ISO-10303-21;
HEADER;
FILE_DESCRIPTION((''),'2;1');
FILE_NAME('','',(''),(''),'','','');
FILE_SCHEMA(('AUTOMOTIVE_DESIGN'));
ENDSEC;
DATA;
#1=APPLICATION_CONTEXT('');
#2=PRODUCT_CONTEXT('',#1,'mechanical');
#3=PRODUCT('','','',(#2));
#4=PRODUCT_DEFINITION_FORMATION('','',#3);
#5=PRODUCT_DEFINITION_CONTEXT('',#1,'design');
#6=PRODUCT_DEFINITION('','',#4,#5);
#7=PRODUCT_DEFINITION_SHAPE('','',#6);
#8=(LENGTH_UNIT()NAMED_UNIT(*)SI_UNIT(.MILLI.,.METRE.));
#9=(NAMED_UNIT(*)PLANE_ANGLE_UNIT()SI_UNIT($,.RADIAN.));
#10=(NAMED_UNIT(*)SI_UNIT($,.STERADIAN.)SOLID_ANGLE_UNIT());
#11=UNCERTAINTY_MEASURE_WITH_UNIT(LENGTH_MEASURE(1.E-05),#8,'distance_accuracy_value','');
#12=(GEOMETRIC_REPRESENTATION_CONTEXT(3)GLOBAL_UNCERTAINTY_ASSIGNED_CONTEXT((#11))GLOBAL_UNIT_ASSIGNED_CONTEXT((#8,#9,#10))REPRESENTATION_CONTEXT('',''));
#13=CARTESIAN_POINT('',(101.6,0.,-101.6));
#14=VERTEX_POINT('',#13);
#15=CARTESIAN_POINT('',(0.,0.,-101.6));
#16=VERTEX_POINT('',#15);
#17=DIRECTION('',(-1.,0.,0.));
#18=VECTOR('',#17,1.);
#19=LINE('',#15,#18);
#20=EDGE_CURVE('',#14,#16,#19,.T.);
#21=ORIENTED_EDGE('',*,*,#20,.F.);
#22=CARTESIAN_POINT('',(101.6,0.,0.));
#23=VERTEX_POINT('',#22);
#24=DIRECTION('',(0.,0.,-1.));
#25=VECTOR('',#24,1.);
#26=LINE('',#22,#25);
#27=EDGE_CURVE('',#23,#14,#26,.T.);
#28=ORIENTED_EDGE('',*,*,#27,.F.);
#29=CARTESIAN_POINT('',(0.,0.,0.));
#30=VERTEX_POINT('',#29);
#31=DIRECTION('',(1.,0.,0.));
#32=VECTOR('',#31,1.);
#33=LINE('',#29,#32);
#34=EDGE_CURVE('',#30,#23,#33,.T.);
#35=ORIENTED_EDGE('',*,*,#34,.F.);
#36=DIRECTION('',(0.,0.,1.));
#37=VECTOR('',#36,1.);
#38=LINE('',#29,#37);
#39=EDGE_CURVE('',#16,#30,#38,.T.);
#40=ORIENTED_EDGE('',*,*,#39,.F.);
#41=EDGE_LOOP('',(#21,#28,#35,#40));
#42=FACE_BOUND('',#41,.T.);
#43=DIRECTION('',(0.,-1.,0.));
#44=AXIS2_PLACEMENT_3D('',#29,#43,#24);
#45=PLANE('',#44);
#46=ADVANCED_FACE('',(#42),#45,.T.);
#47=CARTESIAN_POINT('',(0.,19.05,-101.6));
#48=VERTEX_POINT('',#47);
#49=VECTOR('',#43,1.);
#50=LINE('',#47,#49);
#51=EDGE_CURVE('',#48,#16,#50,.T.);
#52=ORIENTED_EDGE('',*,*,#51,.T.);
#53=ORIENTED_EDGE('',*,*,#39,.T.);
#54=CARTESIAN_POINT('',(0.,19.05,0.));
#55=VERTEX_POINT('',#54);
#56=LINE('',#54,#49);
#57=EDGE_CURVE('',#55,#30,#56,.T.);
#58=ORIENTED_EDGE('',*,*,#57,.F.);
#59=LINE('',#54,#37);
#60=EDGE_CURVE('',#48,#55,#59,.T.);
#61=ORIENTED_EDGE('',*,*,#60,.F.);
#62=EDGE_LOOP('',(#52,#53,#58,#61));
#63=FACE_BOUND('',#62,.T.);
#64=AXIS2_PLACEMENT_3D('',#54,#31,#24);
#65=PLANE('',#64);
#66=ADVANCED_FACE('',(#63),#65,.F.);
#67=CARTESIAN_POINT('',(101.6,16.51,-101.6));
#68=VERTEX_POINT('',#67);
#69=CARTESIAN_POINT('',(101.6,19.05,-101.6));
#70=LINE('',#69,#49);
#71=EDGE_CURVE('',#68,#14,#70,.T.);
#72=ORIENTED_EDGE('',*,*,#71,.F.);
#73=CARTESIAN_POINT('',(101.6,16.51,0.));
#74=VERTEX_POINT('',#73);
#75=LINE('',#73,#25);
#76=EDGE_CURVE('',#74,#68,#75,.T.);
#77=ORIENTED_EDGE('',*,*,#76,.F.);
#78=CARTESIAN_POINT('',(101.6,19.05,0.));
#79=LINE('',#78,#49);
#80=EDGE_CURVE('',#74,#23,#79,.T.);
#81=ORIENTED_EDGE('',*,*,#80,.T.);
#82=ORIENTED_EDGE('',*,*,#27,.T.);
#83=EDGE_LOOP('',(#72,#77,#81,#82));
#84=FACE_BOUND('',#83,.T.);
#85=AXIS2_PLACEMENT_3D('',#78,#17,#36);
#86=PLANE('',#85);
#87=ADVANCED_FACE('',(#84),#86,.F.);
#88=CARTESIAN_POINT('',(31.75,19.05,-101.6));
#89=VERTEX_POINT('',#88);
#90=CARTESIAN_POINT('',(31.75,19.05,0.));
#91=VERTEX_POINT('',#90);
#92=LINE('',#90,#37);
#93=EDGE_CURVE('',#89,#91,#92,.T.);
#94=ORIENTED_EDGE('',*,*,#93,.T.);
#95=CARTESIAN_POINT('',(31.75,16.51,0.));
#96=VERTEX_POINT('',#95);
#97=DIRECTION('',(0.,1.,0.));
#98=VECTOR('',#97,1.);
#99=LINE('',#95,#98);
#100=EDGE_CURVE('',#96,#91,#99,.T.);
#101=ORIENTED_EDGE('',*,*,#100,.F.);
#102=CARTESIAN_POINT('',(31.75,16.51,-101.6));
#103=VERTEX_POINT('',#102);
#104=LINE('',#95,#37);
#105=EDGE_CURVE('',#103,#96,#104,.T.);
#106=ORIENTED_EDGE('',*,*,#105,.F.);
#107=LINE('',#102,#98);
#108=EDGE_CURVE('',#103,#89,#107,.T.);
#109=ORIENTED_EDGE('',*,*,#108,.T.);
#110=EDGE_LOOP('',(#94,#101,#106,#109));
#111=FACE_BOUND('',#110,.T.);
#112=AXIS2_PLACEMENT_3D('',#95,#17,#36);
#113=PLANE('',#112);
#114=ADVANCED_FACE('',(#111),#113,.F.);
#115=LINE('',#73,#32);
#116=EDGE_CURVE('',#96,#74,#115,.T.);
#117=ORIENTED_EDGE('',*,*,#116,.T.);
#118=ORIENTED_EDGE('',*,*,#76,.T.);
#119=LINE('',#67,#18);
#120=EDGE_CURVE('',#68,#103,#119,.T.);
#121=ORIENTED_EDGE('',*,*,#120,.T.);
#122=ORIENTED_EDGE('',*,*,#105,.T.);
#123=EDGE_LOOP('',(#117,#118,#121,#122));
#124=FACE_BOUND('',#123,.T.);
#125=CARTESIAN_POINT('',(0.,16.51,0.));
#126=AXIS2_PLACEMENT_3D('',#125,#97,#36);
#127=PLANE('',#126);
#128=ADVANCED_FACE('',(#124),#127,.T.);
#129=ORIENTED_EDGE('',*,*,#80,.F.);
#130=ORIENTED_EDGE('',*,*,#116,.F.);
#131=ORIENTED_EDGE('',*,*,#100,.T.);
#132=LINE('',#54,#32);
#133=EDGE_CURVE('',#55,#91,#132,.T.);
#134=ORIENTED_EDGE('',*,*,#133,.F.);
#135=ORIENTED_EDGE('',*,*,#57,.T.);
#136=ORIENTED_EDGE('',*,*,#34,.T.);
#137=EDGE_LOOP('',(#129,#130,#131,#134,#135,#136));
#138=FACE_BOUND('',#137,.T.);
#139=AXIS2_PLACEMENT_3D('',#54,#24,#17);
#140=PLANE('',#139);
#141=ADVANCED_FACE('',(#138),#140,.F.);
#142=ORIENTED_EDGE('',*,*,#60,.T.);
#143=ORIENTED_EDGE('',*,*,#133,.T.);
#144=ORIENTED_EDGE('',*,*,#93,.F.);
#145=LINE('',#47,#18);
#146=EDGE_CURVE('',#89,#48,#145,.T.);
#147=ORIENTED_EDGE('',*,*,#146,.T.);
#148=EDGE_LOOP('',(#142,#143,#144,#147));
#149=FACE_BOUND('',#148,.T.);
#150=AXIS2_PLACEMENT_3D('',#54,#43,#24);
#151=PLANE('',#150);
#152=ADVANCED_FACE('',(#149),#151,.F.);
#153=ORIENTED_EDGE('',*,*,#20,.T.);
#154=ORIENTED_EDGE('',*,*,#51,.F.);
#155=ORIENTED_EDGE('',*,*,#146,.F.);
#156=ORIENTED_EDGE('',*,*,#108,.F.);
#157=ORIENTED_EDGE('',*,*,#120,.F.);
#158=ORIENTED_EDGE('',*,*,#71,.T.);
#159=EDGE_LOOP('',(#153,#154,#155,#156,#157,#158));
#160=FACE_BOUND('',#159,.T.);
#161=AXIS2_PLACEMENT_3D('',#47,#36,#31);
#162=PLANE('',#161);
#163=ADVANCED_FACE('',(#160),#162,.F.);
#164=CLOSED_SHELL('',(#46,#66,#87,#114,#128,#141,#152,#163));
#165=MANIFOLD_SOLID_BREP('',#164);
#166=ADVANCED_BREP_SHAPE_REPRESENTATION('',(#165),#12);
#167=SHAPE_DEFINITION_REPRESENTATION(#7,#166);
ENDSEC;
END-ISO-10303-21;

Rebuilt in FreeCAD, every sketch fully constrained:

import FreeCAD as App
import Part
import Sketcher
from FreeCAD import Vector
Q = App.Units.Quantity

doc = App.newDocument("Part")
body = doc.addObject("PartDesign::Body", "Body")

# Sketch on XZ plane
sketch1 = body.newObject("Sketcher::SketchObject", "Sketch")
sketch1.AttachmentSupport = (doc.getObject("XZ_Plane"), [""])
sketch1.MapMode = "FlatFace"
sketch1.addGeometry([
    Part.LineSegment(Vector(0, -101.6, 0), Vector(0, 0, 0)),
    Part.LineSegment(Vector(0, 0, 0), Vector(101.6, 0, 0)),
    Part.LineSegment(Vector(101.6, 0, 0), Vector(101.6, -101.6, 0)),
    Part.LineSegment(Vector(101.6, -101.6, 0), Vector(0, -101.6, 0)),
], False)
sketch1.addConstraint([
    Sketcher.Constraint("Coincident", 0, 2, 1, 1),
    Sketcher.Constraint("Coincident", 1, 2, 2, 1),
    Sketcher.Constraint("Coincident", 2, 2, 3, 1),
    Sketcher.Constraint("Coincident", 3, 2, 0, 1),
    Sketcher.Constraint("Vertical", 0),
    Sketcher.Constraint("Horizontal", 1),
    Sketcher.Constraint("Vertical", 2),
    Sketcher.Constraint("Horizontal", 3),
    Sketcher.Constraint("Coincident", 0, 2, -1, 1),
    Sketcher.Constraint("Equal", 3, 0),
    Sketcher.Constraint("DistanceX", 1, 1, 1, 2, Q("4 in")),
])
pad1 = body.newObject("PartDesign::Pad", "Pad")
pad1.Profile = sketch1
pad1.Length = Q("0.75 in")
pad1.Reversed = True

# Sketch on XZ plane
sketch2 = body.newObject("Sketcher::SketchObject", "Sketch001")
sketch2.AttachmentSupport = (doc.getObject("XZ_Plane"), [""])
sketch2.MapMode = "FlatFace"
sketch2.AttachmentOffset = App.Placement(Vector(0, 0, -0.75 * 25.4), App.Rotation())
sketch2.addGeometry([
    Part.LineSegment(Vector(31.75, -101.6, 0), Vector(31.75, 0, 0)),
    Part.LineSegment(Vector(31.75, 0, 0), Vector(101.6, 0, 0)),
    Part.LineSegment(Vector(101.6, 0, 0), Vector(101.6, -101.6, 0)),
    Part.LineSegment(Vector(101.6, -101.6, 0), Vector(31.75, -101.6, 0)),
], False)
sketch2.addConstraint([
    Sketcher.Constraint("Coincident", 0, 2, 1, 1),
    Sketcher.Constraint("Coincident", 1, 2, 2, 1),
    Sketcher.Constraint("Coincident", 2, 2, 3, 1),
    Sketcher.Constraint("Coincident", 3, 2, 0, 1),
    Sketcher.Constraint("Vertical", 0),
    Sketcher.Constraint("Horizontal", 1),
    Sketcher.Constraint("Vertical", 2),
    Sketcher.Constraint("Horizontal", 3),
    Sketcher.Constraint("PointOnObject", 0, 2, -1),
    Sketcher.Constraint("DistanceY", 0, 1, 0, 2, Q("4 in")),
    Sketcher.Constraint("DistanceX", -1, 1, 1, 2, Q("4 in")),
    Sketcher.Constraint("DistanceX", 1, 1, 1, 2, Q("2.75 in")),
])
pocket1 = body.newObject("PartDesign::Pocket", "Pocket")
pocket1.Profile = sketch2
pocket1.Length = Q("0.1 in")
pocket1.Reversed = True

doc.recompute()
